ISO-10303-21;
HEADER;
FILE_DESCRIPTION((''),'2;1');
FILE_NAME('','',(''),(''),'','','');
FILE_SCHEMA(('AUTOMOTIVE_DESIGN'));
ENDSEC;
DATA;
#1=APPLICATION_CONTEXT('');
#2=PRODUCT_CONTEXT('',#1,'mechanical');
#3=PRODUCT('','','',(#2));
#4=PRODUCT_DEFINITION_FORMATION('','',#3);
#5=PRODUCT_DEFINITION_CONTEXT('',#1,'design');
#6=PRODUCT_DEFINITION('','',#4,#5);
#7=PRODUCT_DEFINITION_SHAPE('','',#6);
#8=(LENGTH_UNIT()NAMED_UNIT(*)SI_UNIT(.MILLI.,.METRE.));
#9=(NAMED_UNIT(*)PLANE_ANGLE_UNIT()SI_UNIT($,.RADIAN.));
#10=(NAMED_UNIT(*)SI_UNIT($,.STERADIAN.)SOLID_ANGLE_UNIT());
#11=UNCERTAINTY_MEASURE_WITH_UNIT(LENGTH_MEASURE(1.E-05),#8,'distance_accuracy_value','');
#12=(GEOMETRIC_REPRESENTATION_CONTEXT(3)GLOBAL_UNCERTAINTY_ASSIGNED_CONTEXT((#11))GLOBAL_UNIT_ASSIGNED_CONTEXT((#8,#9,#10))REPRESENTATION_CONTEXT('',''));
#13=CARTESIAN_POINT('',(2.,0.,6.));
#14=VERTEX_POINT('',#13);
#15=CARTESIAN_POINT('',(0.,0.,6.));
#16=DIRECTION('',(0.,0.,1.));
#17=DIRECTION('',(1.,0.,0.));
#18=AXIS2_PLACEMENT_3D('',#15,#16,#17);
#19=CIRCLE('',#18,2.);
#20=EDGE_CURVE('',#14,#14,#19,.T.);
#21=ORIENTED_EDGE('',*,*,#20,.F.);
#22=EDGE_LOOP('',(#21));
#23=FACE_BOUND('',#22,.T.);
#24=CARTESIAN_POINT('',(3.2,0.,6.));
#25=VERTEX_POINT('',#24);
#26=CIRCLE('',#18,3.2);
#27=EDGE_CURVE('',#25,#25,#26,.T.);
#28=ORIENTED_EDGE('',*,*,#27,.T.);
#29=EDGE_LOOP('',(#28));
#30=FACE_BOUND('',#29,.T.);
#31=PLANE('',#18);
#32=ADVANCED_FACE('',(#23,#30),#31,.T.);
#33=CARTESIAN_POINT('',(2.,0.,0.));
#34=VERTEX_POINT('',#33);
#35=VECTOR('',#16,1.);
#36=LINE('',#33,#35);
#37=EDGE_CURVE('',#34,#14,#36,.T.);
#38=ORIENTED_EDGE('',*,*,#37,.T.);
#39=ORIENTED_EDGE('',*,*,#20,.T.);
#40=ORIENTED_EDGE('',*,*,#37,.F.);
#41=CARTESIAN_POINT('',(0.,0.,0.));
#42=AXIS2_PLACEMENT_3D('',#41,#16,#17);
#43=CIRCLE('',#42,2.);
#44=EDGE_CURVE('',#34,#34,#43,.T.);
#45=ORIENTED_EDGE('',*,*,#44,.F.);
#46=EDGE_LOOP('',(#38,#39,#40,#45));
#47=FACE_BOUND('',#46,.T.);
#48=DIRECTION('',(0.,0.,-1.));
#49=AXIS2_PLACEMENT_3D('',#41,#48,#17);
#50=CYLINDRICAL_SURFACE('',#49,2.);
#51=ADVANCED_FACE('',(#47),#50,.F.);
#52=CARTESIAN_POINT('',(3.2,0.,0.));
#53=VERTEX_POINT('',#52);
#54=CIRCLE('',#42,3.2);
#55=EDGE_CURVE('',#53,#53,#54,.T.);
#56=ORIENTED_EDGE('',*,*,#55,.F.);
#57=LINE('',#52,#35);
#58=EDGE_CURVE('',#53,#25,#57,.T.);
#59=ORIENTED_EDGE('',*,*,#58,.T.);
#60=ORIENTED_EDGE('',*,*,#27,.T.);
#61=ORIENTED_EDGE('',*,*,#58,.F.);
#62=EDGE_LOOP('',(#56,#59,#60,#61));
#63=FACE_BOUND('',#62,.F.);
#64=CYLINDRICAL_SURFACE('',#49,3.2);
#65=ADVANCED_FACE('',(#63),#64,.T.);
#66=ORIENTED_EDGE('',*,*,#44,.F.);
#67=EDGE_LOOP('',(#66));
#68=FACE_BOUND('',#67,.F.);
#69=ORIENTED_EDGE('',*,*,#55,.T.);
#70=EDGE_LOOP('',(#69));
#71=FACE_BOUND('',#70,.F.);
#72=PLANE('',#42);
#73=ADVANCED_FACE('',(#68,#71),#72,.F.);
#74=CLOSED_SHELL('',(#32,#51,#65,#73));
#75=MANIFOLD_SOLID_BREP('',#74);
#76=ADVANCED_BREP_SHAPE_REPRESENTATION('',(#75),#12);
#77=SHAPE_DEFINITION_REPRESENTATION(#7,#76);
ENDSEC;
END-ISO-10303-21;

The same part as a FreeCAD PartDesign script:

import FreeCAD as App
import Part
import Sketcher

V = App.Vector
Q = App.Units.Quantity

doc = App.newDocument("Part")
body = doc.addObject("PartDesign::Body", "Body")

# Sketch on XY plane
sketch1 = body.newObject("Sketcher::SketchObject", "Sketch")
sketch1.AttachmentSupport = (doc.getObject("XY_Plane"), [""])
sketch1.MapMode = "FlatFace"
sketch1.addGeometry(Part.Circle(V(0, 0, 0), V(0, 0, 1), 3.2), False)
sketch1.addGeometry(Part.Circle(V(0, 0, 0), V(0, 0, 1), 2), False)
sketch1.addConstraint(Sketcher.Constraint("Coincident", 0, 3, -1, 1))
sketch1.addConstraint(Sketcher.Constraint("Coincident", 1, 3, -1, 1))
sketch1.addConstraint(Sketcher.Constraint("Diameter", 1, Q("4 mm")))
sketch1.addConstraint(Sketcher.Constraint("Diameter", 0, Q("6.4 mm")))
pad1 = body.newObject("PartDesign::Pad", "Pad")
pad1.Profile = sketch1
pad1.Length = 6

doc.recompute()
